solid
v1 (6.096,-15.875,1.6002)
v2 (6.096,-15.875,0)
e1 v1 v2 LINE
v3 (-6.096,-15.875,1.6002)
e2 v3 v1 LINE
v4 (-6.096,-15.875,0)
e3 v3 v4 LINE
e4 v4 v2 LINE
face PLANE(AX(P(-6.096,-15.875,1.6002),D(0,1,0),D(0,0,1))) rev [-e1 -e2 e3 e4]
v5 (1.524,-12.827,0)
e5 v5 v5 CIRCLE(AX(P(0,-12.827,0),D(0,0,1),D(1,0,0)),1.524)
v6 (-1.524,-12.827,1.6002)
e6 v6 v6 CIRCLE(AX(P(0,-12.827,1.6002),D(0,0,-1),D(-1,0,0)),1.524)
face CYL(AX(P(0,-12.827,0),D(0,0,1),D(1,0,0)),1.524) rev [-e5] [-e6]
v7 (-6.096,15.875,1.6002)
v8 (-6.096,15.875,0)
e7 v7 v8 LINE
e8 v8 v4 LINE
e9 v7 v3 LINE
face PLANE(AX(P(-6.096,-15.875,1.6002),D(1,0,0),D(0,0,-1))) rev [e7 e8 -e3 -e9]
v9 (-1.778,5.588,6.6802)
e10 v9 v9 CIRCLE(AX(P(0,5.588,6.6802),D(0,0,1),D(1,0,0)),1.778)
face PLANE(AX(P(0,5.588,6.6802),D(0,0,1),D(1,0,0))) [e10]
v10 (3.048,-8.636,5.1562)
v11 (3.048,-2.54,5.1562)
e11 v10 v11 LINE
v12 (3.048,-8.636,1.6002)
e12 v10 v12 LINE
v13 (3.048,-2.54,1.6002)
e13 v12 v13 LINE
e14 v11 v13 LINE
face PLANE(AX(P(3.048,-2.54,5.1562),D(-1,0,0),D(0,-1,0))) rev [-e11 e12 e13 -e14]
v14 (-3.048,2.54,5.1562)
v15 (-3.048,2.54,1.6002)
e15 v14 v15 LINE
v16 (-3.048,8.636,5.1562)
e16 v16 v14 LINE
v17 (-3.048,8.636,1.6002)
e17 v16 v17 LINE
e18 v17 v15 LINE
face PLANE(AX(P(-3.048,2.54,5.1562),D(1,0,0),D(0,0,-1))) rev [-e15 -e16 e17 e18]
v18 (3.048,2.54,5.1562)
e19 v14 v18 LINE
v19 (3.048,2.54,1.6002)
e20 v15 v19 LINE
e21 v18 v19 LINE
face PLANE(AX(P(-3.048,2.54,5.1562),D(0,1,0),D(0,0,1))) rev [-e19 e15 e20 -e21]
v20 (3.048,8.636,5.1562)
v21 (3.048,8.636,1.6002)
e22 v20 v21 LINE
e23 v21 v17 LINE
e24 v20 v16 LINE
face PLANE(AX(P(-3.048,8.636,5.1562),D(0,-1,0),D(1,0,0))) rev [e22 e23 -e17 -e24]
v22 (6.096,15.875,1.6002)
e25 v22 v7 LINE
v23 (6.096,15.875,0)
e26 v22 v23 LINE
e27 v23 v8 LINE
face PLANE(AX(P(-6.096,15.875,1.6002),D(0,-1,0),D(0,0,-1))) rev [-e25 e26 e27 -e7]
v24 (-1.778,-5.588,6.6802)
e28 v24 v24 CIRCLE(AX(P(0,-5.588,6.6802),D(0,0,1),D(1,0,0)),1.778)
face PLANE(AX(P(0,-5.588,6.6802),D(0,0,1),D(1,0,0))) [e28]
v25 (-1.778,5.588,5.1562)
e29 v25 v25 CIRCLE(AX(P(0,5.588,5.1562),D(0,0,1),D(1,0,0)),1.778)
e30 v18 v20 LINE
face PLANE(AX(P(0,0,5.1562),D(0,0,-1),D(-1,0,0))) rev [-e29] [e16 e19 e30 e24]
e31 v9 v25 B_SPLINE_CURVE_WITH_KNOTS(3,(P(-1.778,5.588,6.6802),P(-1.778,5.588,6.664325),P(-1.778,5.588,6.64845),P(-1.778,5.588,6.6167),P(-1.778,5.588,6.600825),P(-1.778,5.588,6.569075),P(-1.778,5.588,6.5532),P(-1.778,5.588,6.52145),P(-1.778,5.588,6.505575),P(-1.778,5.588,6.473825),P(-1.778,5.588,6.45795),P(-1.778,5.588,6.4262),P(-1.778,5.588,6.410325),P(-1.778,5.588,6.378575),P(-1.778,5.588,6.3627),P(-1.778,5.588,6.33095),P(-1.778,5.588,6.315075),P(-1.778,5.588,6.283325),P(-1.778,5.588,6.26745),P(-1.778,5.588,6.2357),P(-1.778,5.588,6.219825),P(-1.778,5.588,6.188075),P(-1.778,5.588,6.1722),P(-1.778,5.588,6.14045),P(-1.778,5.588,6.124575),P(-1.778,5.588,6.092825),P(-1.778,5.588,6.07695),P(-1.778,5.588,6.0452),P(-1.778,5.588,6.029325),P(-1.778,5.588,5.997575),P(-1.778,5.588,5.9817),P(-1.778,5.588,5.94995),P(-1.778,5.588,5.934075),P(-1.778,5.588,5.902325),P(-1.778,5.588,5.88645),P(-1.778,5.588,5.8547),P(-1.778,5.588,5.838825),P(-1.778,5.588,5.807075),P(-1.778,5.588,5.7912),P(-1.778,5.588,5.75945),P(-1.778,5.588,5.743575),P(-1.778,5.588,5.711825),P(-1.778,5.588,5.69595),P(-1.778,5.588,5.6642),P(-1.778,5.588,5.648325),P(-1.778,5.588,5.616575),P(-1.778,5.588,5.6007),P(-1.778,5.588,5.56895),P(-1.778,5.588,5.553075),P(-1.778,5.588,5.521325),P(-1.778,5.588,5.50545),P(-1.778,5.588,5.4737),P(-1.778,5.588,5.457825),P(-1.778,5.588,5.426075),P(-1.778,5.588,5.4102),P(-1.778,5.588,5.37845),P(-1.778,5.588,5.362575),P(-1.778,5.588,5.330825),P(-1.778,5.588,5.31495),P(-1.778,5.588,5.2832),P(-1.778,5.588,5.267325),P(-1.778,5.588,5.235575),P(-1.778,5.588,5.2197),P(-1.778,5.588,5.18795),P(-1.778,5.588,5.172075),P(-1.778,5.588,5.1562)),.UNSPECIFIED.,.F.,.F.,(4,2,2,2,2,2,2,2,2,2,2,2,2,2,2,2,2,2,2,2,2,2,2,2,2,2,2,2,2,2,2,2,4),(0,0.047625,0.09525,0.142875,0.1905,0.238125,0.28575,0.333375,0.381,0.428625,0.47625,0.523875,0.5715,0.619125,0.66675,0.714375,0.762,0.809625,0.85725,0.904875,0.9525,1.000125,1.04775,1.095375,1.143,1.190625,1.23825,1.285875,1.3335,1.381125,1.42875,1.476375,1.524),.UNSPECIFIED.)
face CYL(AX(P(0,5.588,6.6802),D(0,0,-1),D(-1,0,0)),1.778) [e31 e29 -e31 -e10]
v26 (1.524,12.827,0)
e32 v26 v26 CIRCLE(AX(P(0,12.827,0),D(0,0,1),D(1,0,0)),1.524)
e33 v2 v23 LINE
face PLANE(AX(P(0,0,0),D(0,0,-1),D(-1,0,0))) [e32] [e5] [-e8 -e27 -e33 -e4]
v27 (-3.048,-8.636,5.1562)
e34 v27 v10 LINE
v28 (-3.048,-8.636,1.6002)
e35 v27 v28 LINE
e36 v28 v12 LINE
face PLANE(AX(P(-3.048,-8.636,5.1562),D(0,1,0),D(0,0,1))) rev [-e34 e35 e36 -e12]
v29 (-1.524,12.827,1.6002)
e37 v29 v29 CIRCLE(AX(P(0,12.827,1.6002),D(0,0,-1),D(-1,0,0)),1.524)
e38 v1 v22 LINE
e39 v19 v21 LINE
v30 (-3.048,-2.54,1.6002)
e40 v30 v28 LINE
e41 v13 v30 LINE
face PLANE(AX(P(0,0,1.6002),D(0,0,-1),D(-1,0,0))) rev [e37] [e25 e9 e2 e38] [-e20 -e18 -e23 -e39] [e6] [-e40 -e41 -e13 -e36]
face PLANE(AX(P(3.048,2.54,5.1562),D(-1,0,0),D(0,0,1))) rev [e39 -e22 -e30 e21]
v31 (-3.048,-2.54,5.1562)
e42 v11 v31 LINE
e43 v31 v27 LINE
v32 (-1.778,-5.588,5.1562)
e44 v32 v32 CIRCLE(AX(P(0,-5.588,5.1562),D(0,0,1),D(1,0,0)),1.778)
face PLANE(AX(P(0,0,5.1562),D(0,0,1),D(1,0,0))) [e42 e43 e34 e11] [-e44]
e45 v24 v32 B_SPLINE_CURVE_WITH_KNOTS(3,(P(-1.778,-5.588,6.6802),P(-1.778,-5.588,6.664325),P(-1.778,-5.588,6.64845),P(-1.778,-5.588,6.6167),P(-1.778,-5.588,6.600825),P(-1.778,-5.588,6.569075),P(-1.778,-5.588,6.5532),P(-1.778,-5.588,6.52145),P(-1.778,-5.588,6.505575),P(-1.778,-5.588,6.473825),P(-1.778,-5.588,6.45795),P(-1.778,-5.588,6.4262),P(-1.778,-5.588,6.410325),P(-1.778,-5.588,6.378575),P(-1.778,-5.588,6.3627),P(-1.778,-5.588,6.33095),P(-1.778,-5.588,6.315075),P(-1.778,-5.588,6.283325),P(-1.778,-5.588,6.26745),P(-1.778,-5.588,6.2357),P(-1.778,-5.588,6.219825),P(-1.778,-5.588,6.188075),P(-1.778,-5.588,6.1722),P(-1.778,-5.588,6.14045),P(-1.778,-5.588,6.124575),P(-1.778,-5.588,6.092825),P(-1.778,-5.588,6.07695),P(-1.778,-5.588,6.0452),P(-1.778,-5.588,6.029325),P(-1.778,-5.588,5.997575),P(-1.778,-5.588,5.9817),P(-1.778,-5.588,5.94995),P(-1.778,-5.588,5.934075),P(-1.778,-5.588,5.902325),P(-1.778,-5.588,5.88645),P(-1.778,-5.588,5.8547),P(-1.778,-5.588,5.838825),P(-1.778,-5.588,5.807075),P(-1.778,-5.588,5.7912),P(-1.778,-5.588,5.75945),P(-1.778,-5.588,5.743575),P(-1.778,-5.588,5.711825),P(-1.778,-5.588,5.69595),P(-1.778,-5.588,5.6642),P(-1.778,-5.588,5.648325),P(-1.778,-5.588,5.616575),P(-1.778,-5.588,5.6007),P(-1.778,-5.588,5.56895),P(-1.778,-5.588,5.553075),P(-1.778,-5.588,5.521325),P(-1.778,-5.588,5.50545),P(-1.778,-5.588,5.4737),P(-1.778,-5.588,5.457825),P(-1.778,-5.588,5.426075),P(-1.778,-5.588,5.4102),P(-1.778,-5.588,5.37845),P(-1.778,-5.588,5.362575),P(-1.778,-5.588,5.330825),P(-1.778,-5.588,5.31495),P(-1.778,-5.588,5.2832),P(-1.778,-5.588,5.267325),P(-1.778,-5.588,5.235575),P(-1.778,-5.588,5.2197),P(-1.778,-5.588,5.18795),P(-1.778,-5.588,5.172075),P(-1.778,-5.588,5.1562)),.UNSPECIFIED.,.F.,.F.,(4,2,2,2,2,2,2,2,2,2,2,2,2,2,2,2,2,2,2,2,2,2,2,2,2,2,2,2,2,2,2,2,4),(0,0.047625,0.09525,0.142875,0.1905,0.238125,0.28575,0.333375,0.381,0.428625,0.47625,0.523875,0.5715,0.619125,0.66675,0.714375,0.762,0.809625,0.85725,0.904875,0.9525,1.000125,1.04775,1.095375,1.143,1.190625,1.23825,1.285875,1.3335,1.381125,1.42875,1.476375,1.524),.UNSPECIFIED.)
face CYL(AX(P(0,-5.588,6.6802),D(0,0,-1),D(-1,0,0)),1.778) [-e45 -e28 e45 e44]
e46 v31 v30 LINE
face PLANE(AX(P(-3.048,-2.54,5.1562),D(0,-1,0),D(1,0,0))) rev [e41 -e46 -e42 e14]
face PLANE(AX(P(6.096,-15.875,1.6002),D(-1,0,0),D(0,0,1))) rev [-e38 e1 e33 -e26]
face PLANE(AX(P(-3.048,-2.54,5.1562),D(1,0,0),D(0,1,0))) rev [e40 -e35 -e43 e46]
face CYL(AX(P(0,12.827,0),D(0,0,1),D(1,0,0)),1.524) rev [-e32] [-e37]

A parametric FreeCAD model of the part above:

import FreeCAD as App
import Part
import Sketcher
from FreeCAD import Vector
Q = App.Units.Quantity

doc = App.newDocument("Part")
params = doc.addObject("Spreadsheet::Sheet", "Params")
for row, (alias, value) in enumerate([
    ("sketch1_width", "0.48 in"),
    ("sketch1_height", "1.25 in"),
    ("pad1_length", "0.063 in"),
    ("sketch2_width", "0.24 in"),
    ("pad2_length", "0.14 in"),
    ("sketch3_diameter", "0.14 in"),
    ("pad3_length", "0.06 in"),
    ("sketch4_diameter", "0.12 in"),
], start=1):
    params.set(f"A{row}", alias)
    params.set(f"B{row}", "=" + value)
    params.setAlias(f"B{row}", alias)

body = doc.addObject("PartDesign::Body", "Body")

# Sketch on XY plane
sketch1 = body.newObject("Sketcher::SketchObject", "Sketch")
sketch1.AttachmentSupport = (doc.getObject("XY_Plane"), [""])
sketch1.MapMode = "FlatFace"
sketch1.addGeometry([
    Part.LineSegment(Vector(-6, 16, 0), Vector(-6, -16, 0)),
    Part.LineSegment(Vector(-6, -16, 0), Vector(6, -16, 0)),
    Part.LineSegment(Vector(6, -16, 0), Vector(6, 16, 0)),
    Part.LineSegment(Vector(6, 16, 0), Vector(-6, 16, 0)),
], False)
sketch1.addConstraint([
    Sketcher.Constraint("Coincident", 0, 2, 1, 1),
    Sketcher.Constraint("Coincident", 1, 2, 2, 1),
    Sketcher.Constraint("Coincident", 2, 2, 3, 1),
    Sketcher.Constraint("Coincident", 3, 2, 0, 1),
    Sketcher.Constraint("Vertical", 0),
    Sketcher.Constraint("Horizontal", 1),
    Sketcher.Constraint("Vertical", 2),
    Sketcher.Constraint("Horizontal", 3),
    Sketcher.Constraint("Symmetric", 0, 2, 2, 2, -1, 1),
    Sketcher.Constraint("DistanceX", 1, 1, 1, 2, Q("0.48 in")),
    Sketcher.Constraint("DistanceY", 0, 2, 0, 1, Q("1.25 in")),
])
sketch1.setExpression("Constraints[9]", "Params.sketch1_width")
sketch1.setExpression("Constraints[10]", "Params.sketch1_height")
pad1 = body.newObject("PartDesign::Pad", "Pad")
pad1.Profile = sketch1
pad1.setExpression("Length", "Params.pad1_length")

# Sketch on XY plane
sketch2 = body.newObject("Sketcher::SketchObject", "Sketch001")
sketch2.AttachmentSupport = (doc.getObject("XY_Plane"), [""])
sketch2.MapMode = "FlatFace"
sketch2.AttachmentOffset = App.Placement(Vector(0, 0, 0.063 * 25.4), App.Rotation())
sketch2.addGeometry([
    Part.LineSegment(Vector(-3, 9, 0), Vector(-3, 3, 0)),  # 0
    Part.LineSegment(Vector(-3, 3, 0), Vector(3, 3, 0)),  # 1
    Part.LineSegment(Vector(3, 3, 0), Vector(3, 9, 0)),  # 2
    Part.LineSegment(Vector(3, 9, 0), Vector(-3, 9, 0)),  # 3
    Part.LineSegment(Vector(-3, -3, 0), Vector(-3, -9, 0)),  # 4
    Part.LineSegment(Vector(-3, -9, 0), Vector(3, -9, 0)),  # 5
    Part.LineSegment(Vector(3, -9, 0), Vector(3, -3, 0)),  # 6
    Part.LineSegment(Vector(3, -3, 0), Vector(-3, -3, 0)),  # 7
], False)
sketch2.addConstraint([
    Sketcher.Constraint("Coincident", 0, 2, 1, 1),
    Sketcher.Constraint("Coincident", 1, 2, 2, 1),
    Sketcher.Constraint("Coincident", 2, 2, 3, 1),
    Sketcher.Constraint("Coincident", 3, 2, 0, 1),
    Sketcher.Constraint("Coincident", 4, 2, 5, 1),
    Sketcher.Constraint("Coincident", 5, 2, 6, 1),
    Sketcher.Constraint("Coincident", 6, 2, 7, 1),
    Sketcher.Constraint("Coincident", 7, 2, 4, 1),
    Sketcher.Constraint("Vertical", 0),
    Sketcher.Constraint("Horizontal", 1),
    Sketcher.Constraint("Vertical", 2),
    Sketcher.Constraint("Horizontal", 3),
    Sketcher.Constraint("Vertical", 4),
    Sketcher.Constraint("Horizontal", 5),
    Sketcher.Constraint("Vertical", 6),
    Sketcher.Constraint("Horizontal", 7),
    Sketcher.Constraint("Symmetric", 2, 2, 4, 2, -1, 1),
    Sketcher.Constraint("Symmetric", 0, 2, 6, 2, -1, 1),
    Sketcher.Constraint("Vertical", 3, 2, 4, 2),
    Sketcher.Constraint("Equal", 7, 0),
    Sketcher.Constraint("DistanceX", 1, 1, 1, 2, Q("0.24 in")),
    Sketcher.Constraint("DistanceY", -1, 1, 0, 2, Q("0.1 in")),
])
sketch2.setExpression("Constraints[20]", "Params.sketch2_width")
pad2 = body.newObject("PartDesign::Pad", "Pad001")
pad2.Profile = sketch2
pad2.setExpression("Length", "Params.pad2_length")

# Sketch on XY plane
sketch3 = body.newObject("Sketcher::SketchObject", "Sketch002")
sketch3.AttachmentSupport = (doc.getObject("XY_Plane"), [""])
sketch3.MapMode = "FlatFace"
sketch3.AttachmentOffset = App.Placement(Vector(0, 0, 0.203 * 25.4), App.Rotation())
sketch3.addGeometry([
    Part.Circle(Vector(0, 5.6, 0), Vector(0, 0, 1), 1.8),
    Part.Circle(Vector(0, -5.6, 0), Vector(0, 0, 1), 1.8),
], False)
sketch3.addConstraint([
    Sketcher.Constraint("Equal", 0, 1),
    Sketcher.Constraint("Symmetric", 0, 3, 1, 3, -1, 1),
    Sketcher.Constraint("PointOnObject", 0, 3, -2),
    Sketcher.Constraint("Diameter", 0, Q("0.14 in")),
    Sketcher.Constraint("DistanceY", -1, 1, 0, 3, Q("0.22 in")),
])
sketch3.setExpression("Constraints[3]", "Params.sketch3_diameter")
pad3 = body.newObject("PartDesign::Pad", "Pad002")
pad3.Profile = sketch3
pad3.setExpression("Length", "Params.pad3_length")

# Sketch on XY plane
sketch4 = body.newObject("Sketcher::SketchObject", "Sketch003")
sketch4.AttachmentSupport = (doc.getObject("XY_Plane"), [""])
sketch4.MapMode = "FlatFace"
sketch4.AttachmentOffset = App.Placement(Vector(0, 0, 0.063 * 25.4), App.Rotation())
sketch4.addGeometry([
    Part.Circle(Vector(0, 12.8, 0), Vector(0, 0, 1), 1.5),
    Part.Circle(Vector(0, -12.8, 0), Vector(0, 0, 1), 1.5),
], False)
sketch4.addConstraint([
    Sketcher.Constraint("Equal", 0, 1),
    Sketcher.Constraint("Symmetric", 0, 3, 1, 3, -1, 1),
    Sketcher.Constraint("PointOnObject", 0, 3, -2),
    Sketcher.Constraint("Diameter", 0, Q("0.12 in")),
    Sketcher.Constraint("DistanceY", 1, 3, 0, 3, Q("1.01 in")),
])
sketch4.setExpression("Constraints[3]", "Params.sketch4_diameter")
pocket1 = body.newObject("PartDesign::Pocket", "Pocket")
pocket1.Profile = sketch4
pocket1.Type = "ThroughAll"
pocket1.Midplane = True

doc.recompute()
